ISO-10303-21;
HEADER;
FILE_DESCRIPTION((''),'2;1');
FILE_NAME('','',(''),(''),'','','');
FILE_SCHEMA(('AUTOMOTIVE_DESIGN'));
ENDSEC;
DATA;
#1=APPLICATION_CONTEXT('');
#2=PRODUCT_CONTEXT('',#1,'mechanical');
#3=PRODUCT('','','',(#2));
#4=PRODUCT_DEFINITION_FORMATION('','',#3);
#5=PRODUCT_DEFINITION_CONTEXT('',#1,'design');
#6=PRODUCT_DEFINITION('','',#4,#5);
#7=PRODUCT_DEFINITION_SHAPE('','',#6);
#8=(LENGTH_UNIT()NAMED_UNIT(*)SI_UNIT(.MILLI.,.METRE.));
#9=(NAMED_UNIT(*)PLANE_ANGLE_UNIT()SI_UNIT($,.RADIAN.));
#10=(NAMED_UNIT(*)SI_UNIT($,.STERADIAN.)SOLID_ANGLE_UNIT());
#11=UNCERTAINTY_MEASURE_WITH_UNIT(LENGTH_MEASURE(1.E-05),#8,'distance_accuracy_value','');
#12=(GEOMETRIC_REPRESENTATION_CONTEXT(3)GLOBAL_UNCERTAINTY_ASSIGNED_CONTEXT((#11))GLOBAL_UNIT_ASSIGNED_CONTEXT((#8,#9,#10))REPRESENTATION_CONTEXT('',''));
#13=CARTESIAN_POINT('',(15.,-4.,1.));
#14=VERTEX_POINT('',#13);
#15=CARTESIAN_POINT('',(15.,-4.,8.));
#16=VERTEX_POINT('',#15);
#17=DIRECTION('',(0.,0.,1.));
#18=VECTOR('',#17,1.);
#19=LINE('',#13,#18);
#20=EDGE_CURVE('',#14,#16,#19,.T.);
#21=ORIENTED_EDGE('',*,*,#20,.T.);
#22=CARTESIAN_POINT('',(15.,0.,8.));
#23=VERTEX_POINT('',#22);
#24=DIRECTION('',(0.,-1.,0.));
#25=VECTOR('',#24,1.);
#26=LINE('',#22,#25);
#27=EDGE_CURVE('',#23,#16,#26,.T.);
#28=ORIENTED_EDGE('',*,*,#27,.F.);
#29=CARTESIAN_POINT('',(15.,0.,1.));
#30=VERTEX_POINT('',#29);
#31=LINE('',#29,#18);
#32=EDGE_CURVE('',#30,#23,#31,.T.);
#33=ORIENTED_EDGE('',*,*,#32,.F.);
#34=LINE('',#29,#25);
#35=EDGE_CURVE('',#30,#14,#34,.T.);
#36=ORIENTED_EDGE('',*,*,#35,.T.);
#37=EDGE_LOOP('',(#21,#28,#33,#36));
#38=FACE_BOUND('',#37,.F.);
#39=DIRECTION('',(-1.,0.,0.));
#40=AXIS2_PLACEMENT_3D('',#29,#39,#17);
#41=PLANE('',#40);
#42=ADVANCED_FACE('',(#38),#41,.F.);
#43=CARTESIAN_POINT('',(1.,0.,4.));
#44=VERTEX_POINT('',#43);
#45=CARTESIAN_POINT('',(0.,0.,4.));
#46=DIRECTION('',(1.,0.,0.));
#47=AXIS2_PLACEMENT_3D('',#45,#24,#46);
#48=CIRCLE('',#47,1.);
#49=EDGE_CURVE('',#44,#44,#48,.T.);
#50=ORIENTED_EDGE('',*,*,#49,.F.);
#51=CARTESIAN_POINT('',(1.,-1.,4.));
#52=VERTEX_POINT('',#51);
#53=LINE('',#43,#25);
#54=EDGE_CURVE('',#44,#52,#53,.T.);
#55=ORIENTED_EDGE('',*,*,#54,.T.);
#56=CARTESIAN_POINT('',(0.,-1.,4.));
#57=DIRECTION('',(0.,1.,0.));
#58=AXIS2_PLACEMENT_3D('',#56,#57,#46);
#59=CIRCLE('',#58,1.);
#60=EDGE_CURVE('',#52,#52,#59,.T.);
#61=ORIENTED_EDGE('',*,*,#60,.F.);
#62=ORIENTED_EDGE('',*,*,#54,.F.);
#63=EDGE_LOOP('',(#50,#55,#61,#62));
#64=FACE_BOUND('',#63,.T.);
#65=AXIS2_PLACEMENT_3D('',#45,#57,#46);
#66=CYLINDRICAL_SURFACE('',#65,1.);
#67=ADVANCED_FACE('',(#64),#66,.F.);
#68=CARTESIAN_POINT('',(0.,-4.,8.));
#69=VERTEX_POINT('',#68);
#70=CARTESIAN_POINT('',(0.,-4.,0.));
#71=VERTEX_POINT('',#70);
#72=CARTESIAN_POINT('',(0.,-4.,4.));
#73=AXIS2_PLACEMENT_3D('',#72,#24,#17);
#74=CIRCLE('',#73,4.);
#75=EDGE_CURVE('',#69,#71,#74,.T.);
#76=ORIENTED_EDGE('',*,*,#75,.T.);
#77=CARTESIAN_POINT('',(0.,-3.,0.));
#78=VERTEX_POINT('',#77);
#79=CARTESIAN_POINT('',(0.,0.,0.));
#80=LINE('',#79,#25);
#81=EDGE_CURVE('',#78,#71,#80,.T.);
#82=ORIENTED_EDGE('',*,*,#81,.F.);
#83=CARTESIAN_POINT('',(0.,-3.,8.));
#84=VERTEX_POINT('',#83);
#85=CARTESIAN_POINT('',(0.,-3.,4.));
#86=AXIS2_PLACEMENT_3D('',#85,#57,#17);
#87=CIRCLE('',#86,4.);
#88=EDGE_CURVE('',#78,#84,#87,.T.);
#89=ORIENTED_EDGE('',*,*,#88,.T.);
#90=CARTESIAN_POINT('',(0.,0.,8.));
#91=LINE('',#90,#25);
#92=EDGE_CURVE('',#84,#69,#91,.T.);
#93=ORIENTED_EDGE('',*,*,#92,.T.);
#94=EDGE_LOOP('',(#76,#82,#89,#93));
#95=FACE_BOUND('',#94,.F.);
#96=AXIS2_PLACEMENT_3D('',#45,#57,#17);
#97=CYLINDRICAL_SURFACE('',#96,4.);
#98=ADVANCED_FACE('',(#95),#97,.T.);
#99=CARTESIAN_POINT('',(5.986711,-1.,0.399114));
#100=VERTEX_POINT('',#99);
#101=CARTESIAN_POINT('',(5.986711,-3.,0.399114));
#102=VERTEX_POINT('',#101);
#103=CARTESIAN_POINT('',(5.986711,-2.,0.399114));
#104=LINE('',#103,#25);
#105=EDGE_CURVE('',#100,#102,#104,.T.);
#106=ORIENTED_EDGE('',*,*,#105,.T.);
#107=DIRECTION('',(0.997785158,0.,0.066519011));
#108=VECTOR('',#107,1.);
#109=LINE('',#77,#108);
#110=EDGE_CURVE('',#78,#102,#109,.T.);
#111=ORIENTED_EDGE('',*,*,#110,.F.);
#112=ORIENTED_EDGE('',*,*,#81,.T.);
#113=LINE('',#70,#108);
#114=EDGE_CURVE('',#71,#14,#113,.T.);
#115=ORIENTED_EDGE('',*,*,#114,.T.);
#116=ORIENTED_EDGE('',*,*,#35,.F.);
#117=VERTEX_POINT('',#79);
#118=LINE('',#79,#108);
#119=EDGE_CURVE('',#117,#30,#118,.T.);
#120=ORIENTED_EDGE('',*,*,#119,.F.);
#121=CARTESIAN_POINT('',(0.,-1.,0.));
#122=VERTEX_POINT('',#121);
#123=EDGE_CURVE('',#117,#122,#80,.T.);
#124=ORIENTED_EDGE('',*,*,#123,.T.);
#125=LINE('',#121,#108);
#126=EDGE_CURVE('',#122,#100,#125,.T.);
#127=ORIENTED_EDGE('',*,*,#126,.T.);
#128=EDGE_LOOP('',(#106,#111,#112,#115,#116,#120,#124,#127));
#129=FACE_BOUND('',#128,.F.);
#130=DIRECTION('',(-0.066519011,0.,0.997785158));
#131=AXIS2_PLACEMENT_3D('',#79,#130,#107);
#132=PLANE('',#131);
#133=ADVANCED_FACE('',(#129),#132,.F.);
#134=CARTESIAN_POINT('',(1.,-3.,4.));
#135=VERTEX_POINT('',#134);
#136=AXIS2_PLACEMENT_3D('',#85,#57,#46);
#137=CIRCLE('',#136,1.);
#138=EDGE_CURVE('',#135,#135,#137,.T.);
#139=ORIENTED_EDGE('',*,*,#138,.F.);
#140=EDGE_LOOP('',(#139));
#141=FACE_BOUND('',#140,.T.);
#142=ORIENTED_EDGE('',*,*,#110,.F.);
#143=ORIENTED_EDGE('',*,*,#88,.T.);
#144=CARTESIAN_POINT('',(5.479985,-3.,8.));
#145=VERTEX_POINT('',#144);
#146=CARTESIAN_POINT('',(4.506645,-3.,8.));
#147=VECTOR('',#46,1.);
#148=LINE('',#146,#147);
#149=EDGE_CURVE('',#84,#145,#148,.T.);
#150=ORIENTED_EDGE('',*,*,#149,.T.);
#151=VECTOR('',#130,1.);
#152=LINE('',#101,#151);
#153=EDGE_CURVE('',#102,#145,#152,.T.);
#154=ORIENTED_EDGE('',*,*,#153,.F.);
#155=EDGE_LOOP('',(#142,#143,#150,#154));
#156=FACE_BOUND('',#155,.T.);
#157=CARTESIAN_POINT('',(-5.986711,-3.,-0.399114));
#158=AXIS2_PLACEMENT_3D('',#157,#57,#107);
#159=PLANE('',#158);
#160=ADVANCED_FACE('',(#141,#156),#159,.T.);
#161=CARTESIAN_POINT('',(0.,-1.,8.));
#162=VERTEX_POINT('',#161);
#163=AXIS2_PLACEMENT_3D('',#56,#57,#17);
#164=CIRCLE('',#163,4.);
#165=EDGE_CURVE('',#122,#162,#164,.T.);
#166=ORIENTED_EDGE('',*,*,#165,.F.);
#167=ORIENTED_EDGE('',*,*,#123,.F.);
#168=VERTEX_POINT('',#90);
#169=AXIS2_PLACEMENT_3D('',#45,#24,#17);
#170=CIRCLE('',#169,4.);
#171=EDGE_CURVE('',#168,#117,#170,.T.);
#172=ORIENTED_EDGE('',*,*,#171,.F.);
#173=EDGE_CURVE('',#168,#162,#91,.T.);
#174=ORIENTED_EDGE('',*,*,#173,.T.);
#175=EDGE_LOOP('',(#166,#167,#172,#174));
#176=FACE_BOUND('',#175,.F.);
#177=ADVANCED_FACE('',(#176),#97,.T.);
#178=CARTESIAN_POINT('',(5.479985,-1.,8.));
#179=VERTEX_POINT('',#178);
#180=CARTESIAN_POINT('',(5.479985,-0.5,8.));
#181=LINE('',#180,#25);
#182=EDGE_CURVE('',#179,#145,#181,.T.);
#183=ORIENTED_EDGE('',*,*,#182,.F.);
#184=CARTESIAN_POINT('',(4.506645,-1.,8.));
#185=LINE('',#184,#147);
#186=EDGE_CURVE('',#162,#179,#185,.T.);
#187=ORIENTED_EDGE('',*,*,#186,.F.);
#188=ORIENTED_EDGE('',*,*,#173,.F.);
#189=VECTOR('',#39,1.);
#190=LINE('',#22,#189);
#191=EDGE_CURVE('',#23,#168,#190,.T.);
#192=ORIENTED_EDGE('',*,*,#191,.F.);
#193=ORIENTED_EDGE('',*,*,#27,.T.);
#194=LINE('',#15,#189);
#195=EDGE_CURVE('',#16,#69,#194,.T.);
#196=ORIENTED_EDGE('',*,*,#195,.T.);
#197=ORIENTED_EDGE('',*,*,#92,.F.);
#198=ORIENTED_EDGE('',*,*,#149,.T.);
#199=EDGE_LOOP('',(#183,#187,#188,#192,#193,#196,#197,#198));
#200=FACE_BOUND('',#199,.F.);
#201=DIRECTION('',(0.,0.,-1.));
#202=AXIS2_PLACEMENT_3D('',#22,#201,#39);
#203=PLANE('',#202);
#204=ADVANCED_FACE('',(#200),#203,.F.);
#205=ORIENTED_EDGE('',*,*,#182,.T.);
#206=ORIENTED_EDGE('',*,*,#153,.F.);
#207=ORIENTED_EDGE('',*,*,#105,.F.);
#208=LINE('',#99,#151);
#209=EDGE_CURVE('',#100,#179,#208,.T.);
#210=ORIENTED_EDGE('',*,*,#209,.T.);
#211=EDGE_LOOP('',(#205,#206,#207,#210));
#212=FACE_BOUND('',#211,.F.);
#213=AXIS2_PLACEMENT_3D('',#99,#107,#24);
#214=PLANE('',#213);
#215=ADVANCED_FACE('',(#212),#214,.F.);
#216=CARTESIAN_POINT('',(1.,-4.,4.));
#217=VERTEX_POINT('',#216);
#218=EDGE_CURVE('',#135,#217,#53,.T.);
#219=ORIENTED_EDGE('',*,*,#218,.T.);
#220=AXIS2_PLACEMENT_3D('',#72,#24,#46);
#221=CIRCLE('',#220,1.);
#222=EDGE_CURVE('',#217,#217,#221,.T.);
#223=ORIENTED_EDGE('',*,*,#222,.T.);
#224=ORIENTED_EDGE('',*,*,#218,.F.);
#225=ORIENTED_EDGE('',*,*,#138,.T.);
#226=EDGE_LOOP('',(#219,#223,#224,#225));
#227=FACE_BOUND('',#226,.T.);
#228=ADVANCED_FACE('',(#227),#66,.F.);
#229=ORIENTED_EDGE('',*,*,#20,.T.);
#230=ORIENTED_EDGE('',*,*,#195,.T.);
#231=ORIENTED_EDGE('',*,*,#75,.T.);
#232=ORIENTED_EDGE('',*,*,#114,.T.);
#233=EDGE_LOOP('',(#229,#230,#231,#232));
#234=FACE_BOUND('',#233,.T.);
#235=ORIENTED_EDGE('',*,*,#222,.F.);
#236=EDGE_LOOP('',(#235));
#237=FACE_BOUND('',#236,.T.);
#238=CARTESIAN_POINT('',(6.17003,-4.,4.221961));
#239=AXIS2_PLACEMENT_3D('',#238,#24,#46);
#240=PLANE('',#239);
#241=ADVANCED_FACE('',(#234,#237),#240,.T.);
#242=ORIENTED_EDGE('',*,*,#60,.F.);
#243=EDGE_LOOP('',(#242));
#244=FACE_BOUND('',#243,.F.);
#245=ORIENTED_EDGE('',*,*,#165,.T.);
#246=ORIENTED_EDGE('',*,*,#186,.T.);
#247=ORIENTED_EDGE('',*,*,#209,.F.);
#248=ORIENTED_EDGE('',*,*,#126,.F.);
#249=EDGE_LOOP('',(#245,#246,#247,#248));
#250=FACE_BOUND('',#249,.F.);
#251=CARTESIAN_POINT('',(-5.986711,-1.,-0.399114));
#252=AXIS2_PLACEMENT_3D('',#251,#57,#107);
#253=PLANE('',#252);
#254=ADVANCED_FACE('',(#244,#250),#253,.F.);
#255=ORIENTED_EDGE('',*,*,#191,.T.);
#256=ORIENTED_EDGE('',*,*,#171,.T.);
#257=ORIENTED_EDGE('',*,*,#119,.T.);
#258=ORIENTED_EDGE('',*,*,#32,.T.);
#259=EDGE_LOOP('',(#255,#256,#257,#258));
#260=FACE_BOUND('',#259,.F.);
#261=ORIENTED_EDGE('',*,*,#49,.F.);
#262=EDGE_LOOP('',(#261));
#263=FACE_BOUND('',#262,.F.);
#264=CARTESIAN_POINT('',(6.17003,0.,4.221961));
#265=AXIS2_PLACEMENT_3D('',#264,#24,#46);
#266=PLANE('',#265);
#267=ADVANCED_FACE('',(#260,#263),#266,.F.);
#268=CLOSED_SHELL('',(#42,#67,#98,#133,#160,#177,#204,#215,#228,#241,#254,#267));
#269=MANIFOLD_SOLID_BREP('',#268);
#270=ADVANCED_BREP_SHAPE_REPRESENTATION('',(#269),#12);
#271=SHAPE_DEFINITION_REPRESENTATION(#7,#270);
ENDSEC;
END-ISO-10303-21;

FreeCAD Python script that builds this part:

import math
import FreeCAD as App
import Part
import Sketcher
Q = App.Units.Quantity

doc = App.newDocument("Part")
body = doc.addObject("PartDesign::Body", "Body")

# Sketch on XZ plane
sketch1 = body.newObject("Sketcher::SketchObject", "Sketch")
sketch1.AttachmentSupport = (doc.getObject("XZ_Plane"), [""])
sketch1.MapMode = "FlatFace"
sketch1.addGeometry(Part.LineSegment(App.Vector(15, 8, 0), App.Vector(0, 8, 0)), False)
sketch1.addGeometry(Part.ArcOfCircle(Part.Circle(App.Vector(0, 4, 0), App.Vector(0, 0, 1), 4), math.radians(90), math.radians(270)), False)
sketch1.addGeometry(Part.LineSegment(App.Vector(0, 0, 0), App.Vector(15, 1, 0)), False)
sketch1.addGeometry(Part.LineSegment(App.Vector(15, 1, 0), App.Vector(15, 8, 0)), False)
sketch1.addGeometry(Part.Circle(App.Vector(0, 4, 0), App.Vector(0, 0, 1), 1), False)
sketch1.addConstraint(Sketcher.Constraint("Tangent", 0, 2, 1, 1))
sketch1.addConstraint(Sketcher.Constraint("Coincident", 1, 2, 2, 1))
sketch1.addConstraint(Sketcher.Constraint("Coincident", 2, 2, 3, 1))
sketch1.addConstraint(Sketcher.Constraint("Coincident", 3, 2, 0, 1))
sketch1.addConstraint(Sketcher.Constraint("Horizontal", 0))
sketch1.addConstraint(Sketcher.Constraint("Vertical", 3))
sketch1.addConstraint(Sketcher.Constraint("Coincident", 1, 2, -1, 1))
sketch1.addConstraint(Sketcher.Constraint("Coincident", 4, 3, 1, 3))
sketch1.addConstraint(Sketcher.Constraint("PointOnObject", 1, 3, -2))
sketch1.addConstraint(Sketcher.Constraint("Diameter", 4, Q("2 mm")))
sketch1.addConstraint(Sketcher.Constraint("Radius", 1, Q("4 mm")))
sketch1.addConstraint(Sketcher.Constraint("DistanceX", 0, 2, 0, 1, Q("15 mm")))
sketch1.addConstraint(Sketcher.Constraint("DistanceY", 3, 1, 3, 2, Q("7 mm")))
pad1 = body.newObject("PartDesign::Pad", "Pad")
pad1.Profile = sketch1
pad1.Length = 4

# Sketch on an angled plane
sketch2 = body.newObject("Sketcher::SketchObject", "Sketch001")
sketch2.Placement = App.Placement(App.Vector(0, 0, 0), App.Rotation(App.Vector(0.997785158, 0, 0.066519011), App.Vector(0, -1, 0), App.Vector(0.066519011, 0, -0.997785158), "ZXY"))
sketch2.addGeometry(Part.LineSegment(App.Vector(-6, 3, 0), App.Vector(-6, 1, 0)), False)
sketch2.addGeometry(Part.LineSegment(App.Vector(-6, 1, 0), App.Vector(6, 1, 0)), False)
sketch2.addGeometry(Part.LineSegment(App.Vector(6, 1, 0), App.Vector(6, 3, 0)), False)
sketch2.addGeometry(Part.LineSegment(App.Vector(6, 3, 0), App.Vector(-6, 3, 0)), False)
sketch2.addConstraint(Sketcher.Constraint("Coincident", 0, 2, 1, 1))
sketch2.addConstraint(Sketcher.Constraint("Coincident", 1, 2, 2, 1))
sketch2.addConstraint(Sketcher.Constraint("Coincident", 2, 2, 3, 1))
sketch2.addConstraint(Sketcher.Constraint("Coincident", 3, 2, 0, 1))
sketch2.addConstraint(Sketcher.Constraint("Vertical", 0))
sketch2.addConstraint(Sketcher.Constraint("Horizontal", 1))
sketch2.addConstraint(Sketcher.Constraint("Vertical", 2))
sketch2.addConstraint(Sketcher.Constraint("Horizontal", 3))
sketch2.addConstraint(Sketcher.Constraint("DistanceX", 1, 1, 1, 2, Q("12 mm")))
sketch2.addConstraint(Sketcher.Constraint("DistanceY", 0, 2, 0, 1, Q("2 mm")))
sketch2.addConstraint(Sketcher.Constraint("DistanceX", 0, 2, -1, 1, Q("6 mm")))
sketch2.addConstraint(Sketcher.Constraint("DistanceY", -1, 1, 0, 2, Q("1 mm")))
pocket1 = body.newObject("PartDesign::Pocket", "Pocket")
pocket1.Profile = sketch2
pocket1.Type = "ThroughAll"

doc.recompute()
